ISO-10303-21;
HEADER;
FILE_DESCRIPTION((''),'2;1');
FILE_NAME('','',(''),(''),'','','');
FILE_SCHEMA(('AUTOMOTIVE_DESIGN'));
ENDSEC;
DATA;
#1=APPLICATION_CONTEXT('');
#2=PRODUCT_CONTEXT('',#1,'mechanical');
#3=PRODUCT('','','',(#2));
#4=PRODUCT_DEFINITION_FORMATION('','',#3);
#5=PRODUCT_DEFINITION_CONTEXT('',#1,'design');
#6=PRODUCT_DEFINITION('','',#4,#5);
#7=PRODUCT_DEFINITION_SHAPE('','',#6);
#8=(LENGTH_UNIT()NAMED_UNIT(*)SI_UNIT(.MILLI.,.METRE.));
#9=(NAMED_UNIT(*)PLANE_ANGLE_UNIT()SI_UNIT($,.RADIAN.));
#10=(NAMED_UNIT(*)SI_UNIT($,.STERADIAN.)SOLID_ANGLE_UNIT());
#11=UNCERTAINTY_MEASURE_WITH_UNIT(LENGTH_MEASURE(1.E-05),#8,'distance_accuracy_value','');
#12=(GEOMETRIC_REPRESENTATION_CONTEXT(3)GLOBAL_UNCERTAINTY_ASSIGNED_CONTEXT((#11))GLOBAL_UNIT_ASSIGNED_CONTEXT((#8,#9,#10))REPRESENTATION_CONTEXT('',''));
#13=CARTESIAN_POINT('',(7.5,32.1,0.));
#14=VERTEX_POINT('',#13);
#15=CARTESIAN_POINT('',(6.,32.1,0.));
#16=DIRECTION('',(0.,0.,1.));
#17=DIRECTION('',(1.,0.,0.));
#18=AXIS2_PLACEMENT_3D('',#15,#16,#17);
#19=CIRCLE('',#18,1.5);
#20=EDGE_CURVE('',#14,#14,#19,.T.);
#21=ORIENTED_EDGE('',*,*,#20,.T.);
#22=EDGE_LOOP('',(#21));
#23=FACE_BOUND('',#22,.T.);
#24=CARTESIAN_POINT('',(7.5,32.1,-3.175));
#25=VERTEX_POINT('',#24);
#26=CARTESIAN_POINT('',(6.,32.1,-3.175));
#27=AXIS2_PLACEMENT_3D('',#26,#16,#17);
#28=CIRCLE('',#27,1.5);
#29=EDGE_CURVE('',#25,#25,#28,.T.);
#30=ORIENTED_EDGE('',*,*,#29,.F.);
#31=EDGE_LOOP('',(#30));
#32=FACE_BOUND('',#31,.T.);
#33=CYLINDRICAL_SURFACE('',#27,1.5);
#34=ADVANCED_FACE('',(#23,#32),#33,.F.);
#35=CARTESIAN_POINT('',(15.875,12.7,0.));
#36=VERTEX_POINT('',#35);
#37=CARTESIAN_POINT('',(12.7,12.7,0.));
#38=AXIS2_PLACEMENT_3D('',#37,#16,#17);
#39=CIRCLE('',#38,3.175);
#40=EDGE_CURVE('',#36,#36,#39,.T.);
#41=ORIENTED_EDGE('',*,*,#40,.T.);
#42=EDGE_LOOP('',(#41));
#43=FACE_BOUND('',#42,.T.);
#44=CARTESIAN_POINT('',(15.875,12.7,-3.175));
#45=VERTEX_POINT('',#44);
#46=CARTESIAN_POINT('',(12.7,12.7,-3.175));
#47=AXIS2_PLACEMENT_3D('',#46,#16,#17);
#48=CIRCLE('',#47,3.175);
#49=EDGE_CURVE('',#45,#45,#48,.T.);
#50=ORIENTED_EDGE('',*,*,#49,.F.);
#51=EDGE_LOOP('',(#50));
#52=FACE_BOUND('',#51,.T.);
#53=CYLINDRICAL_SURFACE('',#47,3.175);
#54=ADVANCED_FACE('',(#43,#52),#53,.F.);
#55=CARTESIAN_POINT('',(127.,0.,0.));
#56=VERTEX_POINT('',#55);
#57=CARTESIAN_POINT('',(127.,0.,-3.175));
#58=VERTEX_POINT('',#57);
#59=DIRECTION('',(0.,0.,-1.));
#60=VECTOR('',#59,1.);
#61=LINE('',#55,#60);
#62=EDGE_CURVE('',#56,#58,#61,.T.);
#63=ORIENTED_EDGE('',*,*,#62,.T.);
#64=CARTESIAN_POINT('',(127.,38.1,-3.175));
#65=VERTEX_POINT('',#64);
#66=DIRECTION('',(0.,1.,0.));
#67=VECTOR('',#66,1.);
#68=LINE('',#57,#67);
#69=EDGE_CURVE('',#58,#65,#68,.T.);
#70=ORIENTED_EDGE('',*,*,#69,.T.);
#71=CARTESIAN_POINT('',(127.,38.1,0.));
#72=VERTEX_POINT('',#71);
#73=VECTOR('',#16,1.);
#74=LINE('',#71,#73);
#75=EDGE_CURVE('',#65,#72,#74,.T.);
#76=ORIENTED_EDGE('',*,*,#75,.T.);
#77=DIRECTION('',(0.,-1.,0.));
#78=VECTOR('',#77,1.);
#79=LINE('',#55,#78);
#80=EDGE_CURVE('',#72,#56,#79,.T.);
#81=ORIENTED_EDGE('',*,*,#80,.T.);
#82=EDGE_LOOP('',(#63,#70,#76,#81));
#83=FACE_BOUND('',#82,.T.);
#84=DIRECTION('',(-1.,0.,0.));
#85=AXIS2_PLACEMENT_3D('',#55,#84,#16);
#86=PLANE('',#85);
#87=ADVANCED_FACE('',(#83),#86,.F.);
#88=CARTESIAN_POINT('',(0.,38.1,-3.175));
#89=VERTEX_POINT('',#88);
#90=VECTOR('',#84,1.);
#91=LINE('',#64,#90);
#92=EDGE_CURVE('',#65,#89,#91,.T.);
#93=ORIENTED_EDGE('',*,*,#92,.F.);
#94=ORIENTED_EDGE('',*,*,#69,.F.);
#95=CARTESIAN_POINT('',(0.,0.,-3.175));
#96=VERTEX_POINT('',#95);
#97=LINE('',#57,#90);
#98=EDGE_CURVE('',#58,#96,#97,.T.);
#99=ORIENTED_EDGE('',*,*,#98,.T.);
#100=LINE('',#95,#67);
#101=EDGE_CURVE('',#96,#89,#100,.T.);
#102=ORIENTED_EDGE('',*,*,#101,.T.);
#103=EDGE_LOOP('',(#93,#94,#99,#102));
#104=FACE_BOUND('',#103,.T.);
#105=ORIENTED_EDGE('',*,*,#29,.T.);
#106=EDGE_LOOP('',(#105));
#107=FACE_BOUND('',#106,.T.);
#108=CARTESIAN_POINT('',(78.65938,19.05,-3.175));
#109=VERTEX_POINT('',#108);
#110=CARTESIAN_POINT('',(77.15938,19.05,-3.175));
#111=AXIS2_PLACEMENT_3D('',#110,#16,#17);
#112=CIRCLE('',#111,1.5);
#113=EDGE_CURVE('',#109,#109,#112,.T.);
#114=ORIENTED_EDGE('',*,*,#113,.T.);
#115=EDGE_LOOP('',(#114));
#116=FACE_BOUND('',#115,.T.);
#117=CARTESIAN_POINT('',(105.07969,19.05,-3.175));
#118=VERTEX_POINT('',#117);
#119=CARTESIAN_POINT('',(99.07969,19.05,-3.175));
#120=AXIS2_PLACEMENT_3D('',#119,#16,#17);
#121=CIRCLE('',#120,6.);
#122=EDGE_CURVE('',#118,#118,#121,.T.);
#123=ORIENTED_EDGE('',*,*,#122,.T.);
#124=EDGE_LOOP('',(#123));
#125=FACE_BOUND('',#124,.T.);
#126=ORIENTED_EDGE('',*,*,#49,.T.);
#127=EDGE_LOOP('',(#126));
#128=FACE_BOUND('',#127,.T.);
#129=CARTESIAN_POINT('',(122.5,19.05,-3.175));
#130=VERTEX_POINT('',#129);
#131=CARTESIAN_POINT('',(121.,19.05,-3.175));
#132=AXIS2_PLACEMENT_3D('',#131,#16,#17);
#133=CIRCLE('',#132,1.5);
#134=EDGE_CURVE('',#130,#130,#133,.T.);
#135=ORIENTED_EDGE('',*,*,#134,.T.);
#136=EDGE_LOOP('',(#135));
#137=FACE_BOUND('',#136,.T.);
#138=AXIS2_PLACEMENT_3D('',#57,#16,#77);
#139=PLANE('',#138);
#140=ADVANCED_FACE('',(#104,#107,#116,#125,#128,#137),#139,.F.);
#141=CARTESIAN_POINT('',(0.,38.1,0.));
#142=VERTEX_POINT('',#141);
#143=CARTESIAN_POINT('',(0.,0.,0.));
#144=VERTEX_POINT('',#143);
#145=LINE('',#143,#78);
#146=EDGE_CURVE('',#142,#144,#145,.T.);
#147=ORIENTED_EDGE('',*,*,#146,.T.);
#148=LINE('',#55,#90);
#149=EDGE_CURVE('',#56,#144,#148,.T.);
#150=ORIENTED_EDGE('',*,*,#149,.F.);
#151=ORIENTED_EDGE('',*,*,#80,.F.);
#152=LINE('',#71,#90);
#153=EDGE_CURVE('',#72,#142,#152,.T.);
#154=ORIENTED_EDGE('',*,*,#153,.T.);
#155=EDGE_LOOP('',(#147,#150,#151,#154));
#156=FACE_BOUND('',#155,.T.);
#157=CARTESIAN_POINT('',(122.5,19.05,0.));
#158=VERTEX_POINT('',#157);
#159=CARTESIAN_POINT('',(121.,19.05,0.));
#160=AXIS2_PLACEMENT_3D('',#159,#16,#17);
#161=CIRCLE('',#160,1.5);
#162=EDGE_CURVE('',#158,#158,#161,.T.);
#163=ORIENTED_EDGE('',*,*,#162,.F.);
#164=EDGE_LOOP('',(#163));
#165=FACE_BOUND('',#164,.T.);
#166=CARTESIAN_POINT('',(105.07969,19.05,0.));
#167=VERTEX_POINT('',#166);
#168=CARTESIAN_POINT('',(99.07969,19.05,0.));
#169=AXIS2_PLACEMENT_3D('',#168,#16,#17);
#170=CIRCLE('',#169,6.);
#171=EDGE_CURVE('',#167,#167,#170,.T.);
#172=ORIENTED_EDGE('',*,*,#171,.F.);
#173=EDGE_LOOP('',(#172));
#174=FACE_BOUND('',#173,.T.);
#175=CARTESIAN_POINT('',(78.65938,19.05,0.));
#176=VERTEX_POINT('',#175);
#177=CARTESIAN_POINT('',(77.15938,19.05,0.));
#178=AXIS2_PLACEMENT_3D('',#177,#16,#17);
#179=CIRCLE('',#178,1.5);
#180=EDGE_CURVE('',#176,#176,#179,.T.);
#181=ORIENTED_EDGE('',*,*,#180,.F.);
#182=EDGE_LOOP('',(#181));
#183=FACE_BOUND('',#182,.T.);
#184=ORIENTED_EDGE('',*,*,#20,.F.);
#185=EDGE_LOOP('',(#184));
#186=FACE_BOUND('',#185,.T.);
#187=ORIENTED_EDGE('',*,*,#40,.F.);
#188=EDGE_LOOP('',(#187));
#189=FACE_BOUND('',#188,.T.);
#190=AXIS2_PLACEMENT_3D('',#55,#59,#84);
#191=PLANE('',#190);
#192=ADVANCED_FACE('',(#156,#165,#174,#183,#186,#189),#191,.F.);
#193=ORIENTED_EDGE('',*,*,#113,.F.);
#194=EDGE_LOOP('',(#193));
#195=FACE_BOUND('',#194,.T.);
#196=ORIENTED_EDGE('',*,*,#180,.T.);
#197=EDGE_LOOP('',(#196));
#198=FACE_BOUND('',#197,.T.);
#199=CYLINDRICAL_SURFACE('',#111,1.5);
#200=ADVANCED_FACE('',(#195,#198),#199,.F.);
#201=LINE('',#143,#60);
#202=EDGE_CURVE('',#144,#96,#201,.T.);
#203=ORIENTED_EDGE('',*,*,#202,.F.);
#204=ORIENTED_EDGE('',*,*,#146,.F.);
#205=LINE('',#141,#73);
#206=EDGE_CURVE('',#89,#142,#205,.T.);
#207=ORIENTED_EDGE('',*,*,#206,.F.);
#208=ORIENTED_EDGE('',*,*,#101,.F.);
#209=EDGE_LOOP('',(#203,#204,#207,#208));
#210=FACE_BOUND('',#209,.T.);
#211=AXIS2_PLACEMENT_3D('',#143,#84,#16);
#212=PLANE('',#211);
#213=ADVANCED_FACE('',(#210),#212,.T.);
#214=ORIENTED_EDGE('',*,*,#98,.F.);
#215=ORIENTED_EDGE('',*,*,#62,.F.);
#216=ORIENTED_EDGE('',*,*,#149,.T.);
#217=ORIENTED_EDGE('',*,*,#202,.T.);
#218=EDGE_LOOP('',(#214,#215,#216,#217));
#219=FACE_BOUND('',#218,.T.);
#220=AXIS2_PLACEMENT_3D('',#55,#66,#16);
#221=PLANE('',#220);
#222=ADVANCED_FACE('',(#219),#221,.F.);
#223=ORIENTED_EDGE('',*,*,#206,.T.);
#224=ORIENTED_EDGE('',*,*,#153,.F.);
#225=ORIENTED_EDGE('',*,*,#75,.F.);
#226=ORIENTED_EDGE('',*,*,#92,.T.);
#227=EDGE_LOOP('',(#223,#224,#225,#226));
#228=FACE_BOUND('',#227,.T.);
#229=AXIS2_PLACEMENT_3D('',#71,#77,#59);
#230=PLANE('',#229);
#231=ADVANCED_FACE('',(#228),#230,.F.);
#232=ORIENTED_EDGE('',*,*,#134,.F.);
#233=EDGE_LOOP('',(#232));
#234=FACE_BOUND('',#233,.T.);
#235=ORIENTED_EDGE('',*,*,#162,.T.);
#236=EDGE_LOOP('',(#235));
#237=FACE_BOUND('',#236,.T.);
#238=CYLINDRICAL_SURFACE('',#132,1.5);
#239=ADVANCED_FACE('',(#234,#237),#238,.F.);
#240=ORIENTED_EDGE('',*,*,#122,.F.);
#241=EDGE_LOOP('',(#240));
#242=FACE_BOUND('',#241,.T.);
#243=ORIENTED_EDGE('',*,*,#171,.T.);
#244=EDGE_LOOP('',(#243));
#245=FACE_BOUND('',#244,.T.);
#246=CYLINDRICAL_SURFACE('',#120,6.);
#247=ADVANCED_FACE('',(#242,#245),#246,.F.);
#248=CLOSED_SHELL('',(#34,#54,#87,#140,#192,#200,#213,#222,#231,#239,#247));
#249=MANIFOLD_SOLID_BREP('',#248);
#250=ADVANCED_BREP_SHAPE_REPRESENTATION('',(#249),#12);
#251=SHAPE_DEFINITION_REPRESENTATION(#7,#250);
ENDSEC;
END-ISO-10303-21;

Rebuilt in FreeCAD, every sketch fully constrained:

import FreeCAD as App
import Part
import Sketcher
from FreeCAD import Vector
Q = App.Units.Quantity


def add_polygon(sketch, points):
    """Adds a closed chain of lines whose ends are joined by coincident constraints."""
    first, n = sketch.GeometryCount, len(points)
    for a, b in zip(points, points[1:] + points[:1]):
        sketch.addGeometry(Part.LineSegment(App.Vector(*a, 0), App.Vector(*b, 0)), False)
    for i in range(n):
        sketch.addConstraint(Sketcher.Constraint("Coincident", first + i, 2, first + (i + 1) % n, 1))

doc = App.newDocument("Part")
body = doc.addObject("PartDesign::Body", "Body")

# Sketch on YZ plane
sketch1 = body.newObject("Sketcher::SketchObject", "Sketch")
sketch1.AttachmentSupport = (doc.getObject("YZ_Plane"), [""])
sketch1.MapMode = "FlatFace"
add_polygon(sketch1, [(38.1, 0), (0, 0), (0, -3.2), (38.1, -3.2)])  # lines 0-3
sketch1.addConstraint([
    Sketcher.Constraint("Horizontal", 0),
    Sketcher.Constraint("Vertical", 1),
    Sketcher.Constraint("Horizontal", 2),
    Sketcher.Constraint("Vertical", 3),
    Sketcher.Constraint("Coincident", 0, 2, -1, 1),
    Sketcher.Constraint("DistanceX", 0, 2, 0, 1, Q("1.5 in")),
    Sketcher.Constraint("DistanceY", 1, 2, 1, 1, Q("0.125 in")),
])
pad1 = body.newObject("PartDesign::Pad", "Pad")
pad1.Profile = sketch1
pad1.Length = Q("5 in")

# Sketch on XY plane
sketch2 = body.newObject("Sketcher::SketchObject", "Sketch001")
sketch2.AttachmentSupport = (doc.getObject("XY_Plane"), [""])
sketch2.MapMode = "FlatFace"
sketch2.addGeometry([
    Part.Circle(Vector(12.7, 12.7, 0), Vector(0, 0, 1), 3.2),  # 0
    Part.Circle(Vector(121, 19.1, 0), Vector(0, 0, 1), 1.5),  # 1
    Part.Circle(Vector(99.1, 19.1, 0), Vector(0, 0, 1), 6),  # 2
    Part.Circle(Vector(77.2, 19.1, 0), Vector(0, 0, 1), 1.5),  # 3
    Part.Circle(Vector(6, 32.1, 0), Vector(0, 0, 1), 1.5),  # 4
], False)
sketch2.addConstraint([
    Sketcher.Constraint("Equal", 1, 3),
    Sketcher.Constraint("Equal", 3, 4),
    Sketcher.Constraint("Horizontal", 1, 3, 2, 3),
    Sketcher.Constraint("Horizontal", 2, 3, 3, 3),
    Sketcher.Constraint("Diameter", 0, Q("0.25 in")),
    Sketcher.Constraint("DistanceX", -1, 1, 0, 3, Q("0.5 in")),
    Sketcher.Constraint("DistanceY", -1, 1, 0, 3, Q("0.5 in")),
    Sketcher.Constraint("Diameter", 1, 3.0),
    Sketcher.Constraint("Diameter", 2, 12.0),
    Sketcher.Constraint("DistanceY", -1, 1, 1, 3, Q("0.75 in")),
    Sketcher.Constraint("DistanceX", -1, 1, 1, 3, 121.0),
    Sketcher.Constraint("DistanceX", -1, 1, 4, 3, 6.0),
    Sketcher.Constraint("DistanceY", -1, 1, 4, 3, 32.1),
    Sketcher.Constraint("DistanceX", -1, 1, 2, 3, 99.07969),
    Sketcher.Constraint("DistanceX", -1, 1, 3, 3, 77.15938),
])
pocket1 = body.newObject("PartDesign::Pocket", "Pocket")
pocket1.Profile = sketch2
pocket1.Type = "ThroughAll"

doc.recompute()
